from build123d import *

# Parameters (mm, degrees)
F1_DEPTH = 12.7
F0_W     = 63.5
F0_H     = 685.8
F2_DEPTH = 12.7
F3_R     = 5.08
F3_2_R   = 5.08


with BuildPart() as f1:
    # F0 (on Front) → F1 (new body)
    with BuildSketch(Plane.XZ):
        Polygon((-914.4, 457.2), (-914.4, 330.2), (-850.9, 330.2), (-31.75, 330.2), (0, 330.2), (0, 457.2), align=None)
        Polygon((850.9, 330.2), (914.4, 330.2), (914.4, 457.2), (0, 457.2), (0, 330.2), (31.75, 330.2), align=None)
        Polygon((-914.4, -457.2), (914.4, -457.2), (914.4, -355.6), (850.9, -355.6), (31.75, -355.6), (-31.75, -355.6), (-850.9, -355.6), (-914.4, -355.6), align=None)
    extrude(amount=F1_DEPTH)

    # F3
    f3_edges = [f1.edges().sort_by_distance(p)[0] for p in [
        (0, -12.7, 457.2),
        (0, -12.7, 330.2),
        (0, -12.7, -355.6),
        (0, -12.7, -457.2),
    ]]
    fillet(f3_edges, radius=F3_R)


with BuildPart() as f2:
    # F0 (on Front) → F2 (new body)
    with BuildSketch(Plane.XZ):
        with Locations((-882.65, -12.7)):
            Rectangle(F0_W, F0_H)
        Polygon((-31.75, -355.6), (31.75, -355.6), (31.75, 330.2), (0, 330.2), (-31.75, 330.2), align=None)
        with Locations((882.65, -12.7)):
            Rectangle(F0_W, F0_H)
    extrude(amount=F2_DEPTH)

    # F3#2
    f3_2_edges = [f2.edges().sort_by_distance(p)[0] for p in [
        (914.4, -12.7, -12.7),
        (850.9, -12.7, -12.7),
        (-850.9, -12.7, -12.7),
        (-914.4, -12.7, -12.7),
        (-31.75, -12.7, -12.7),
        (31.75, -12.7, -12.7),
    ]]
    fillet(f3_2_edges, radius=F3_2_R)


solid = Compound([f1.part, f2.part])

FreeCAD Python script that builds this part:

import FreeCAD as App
import Part
import Sketcher
from FreeCAD import Vector
Q = App.Units.Quantity


def edges_at(feature, points):
    """Names of the edges that pass closest to the given points."""
    edges = feature.Shape.Edges
    near = lambda p: min(range(len(edges)), key=lambda i: edges[i].distToShape(Part.Vertex(*p))[0])
    return sorted({f"Edge{near(p) + 1}" for p in points})

doc = App.newDocument("Part")
body = doc.addObject("PartDesign::Body", "Body")
body.AllowCompound = True

# Sketch on XZ plane
sketch1 = body.newObject("Sketcher::SketchObject", "Sketch")
sketch1.AttachmentSupport = (doc.getObject("XZ_Plane"), [""])
sketch1.MapMode = "FlatFace"
sketch1.addGeometry([
    Part.LineSegment(Vector(-914.4, 457.2, 0), Vector(-914.4, 330.2, 0)),  # 0
    Part.LineSegment(Vector(-914.4, 330.2, 0), Vector(914.4, 330.2, 0)),  # 1
    Part.LineSegment(Vector(914.4, 330.2, 0), Vector(914.4, 457.2, 0)),  # 2
    Part.LineSegment(Vector(914.4, 457.2, 0), Vector(-914.4, 457.2, 0)),  # 3
    Part.LineSegment(Vector(-914.4, -457.2, 0), Vector(914.4, -457.2, 0)),  # 4
    Part.LineSegment(Vector(914.4, -457.2, 0), Vector(914.4, -355.6, 0)),  # 5
    Part.LineSegment(Vector(914.4, -355.6, 0), Vector(-914.4, -355.6, 0)),  # 6
    Part.LineSegment(Vector(-914.4, -355.6, 0), Vector(-914.4, -457.2, 0)),  # 7
], False)
sketch1.addConstraint([
    Sketcher.Constraint("Coincident", 0, 2, 1, 1),
    Sketcher.Constraint("Coincident", 1, 2, 2, 1),
    Sketcher.Constraint("Coincident", 2, 2, 3, 1),
    Sketcher.Constraint("Coincident", 3, 2, 0, 1),
    Sketcher.Constraint("Coincident", 4, 2, 5, 1),
    Sketcher.Constraint("Coincident", 5, 2, 6, 1),
    Sketcher.Constraint("Coincident", 6, 2, 7, 1),
    Sketcher.Constraint("Coincident", 7, 2, 4, 1),
    Sketcher.Constraint("Vertical", 0),
    Sketcher.Constraint("Horizontal", 1),
    Sketcher.Constraint("Vertical", 2),
    Sketcher.Constraint("Horizontal", 3),
    Sketcher.Constraint("Horizontal", 4),
    Sketcher.Constraint("Vertical", 5),
    Sketcher.Constraint("Horizontal", 6),
    Sketcher.Constraint("Vertical", 7),
    Sketcher.Constraint("Symmetric", 3, 2, 4, 2, -1, 1),
    Sketcher.Constraint("Vertical", 2, 2, 4, 2),
    Sketcher.Constraint("Vertical", 3, 2, 6, 2),
    Sketcher.Constraint("DistanceX", 1, 1, 1, 2, Q("72 in")),
    Sketcher.Constraint("DistanceY", 0, 2, 0, 1, Q("5 in")),
    Sketcher.Constraint("DistanceY", 5, 1, 5, 2, Q("4 in")),
    Sketcher.Constraint("DistanceY", -1, 1, 0, 2, Q("13 in")),
])
pad1 = body.newObject("PartDesign::Pad", "Pad")
pad1.Profile = sketch1
pad1.Length = Q("0.5 in")
doc.recompute()

fillet = body.newObject("PartDesign::Fillet", "Fillet")
fillet.Base = (pad1, edges_at(pad1, [
    (0, -12.7, 457.2),
    (0, -12.7, 330.2),
    (0, -12.7, -355.6),
    (0, -12.7, -457.2),
]))
fillet.Radius = Q("0.2 in")
body2 = doc.addObject("PartDesign::Body", "Body001")
body2.AllowCompound = True

# Sketch on XZ plane
sketch2 = body2.newObject("Sketcher::SketchObject", "Sketch001")
sketch2.AttachmentSupport = (doc.getObject("XZ_Plane001"), [""])
sketch2.MapMode = "FlatFace"
sketch2.addGeometry([
    Part.LineSegment(Vector(-914.4, 330.2, 0), Vector(-914.4, -355.6, 0)),  # 0
    Part.LineSegment(Vector(-914.4, -355.6, 0), Vector(-850.9, -355.6, 0)),  # 1
    Part.LineSegment(Vector(-850.9, -355.6, 0), Vector(-850.9, 330.2, 0)),  # 2
    Part.LineSegment(Vector(-850.9, 330.2, 0), Vector(-914.4, 330.2, 0)),  # 3
    Part.LineSegment(Vector(-31.75, -355.6, 0), Vector(31.75, -355.6, 0)),  # 4
    Part.LineSegment(Vector(31.75, -355.6, 0), Vector(31.75, 330.2, 0)),  # 5
    Part.LineSegment(Vector(31.75, 330.2, 0), Vector(-31.75, 330.2, 0)),  # 6
    Part.LineSegment(Vector(-31.75, 330.2, 0), Vector(-31.75, -355.6, 0)),  # 7
    Part.LineSegment(Vector(850.9, 330.2, 0), Vector(850.9, -355.6, 0)),  # 8
    Part.LineSegment(Vector(850.9, -355.6, 0), Vector(914.4, -355.6, 0)),  # 9
    Part.LineSegment(Vector(914.4, -355.6, 0), Vector(914.4, 330.2, 0)),  # 10
    Part.LineSegment(Vector(914.4, 330.2, 0), Vector(850.9, 330.2, 0)),  # 11
], False)
sketch2.addConstraint([
    Sketcher.Constraint("Coincident", 0, 2, 1, 1),
    Sketcher.Constraint("Coincident", 1, 2, 2, 1),
    Sketcher.Constraint("Coincident", 2, 2, 3, 1),
    Sketcher.Constraint("Coincident", 3, 2, 0, 1),
    Sketcher.Constraint("Coincident", 4, 2, 5, 1),
    Sketcher.Constraint("Coincident", 5, 2, 6, 1),
    Sketcher.Constraint("Coincident", 6, 2, 7, 1),
    Sketcher.Constraint("Coincident", 7, 2, 4, 1),
    Sketcher.Constraint("Coincident", 8, 2, 9, 1),
    Sketcher.Constraint("Coincident", 9, 2, 10, 1),
    Sketcher.Constraint("Coincident", 10, 2, 11, 1),
    Sketcher.Constraint("Coincident", 11, 2, 8, 1),
    Sketcher.Constraint("Vertical", 0),
    Sketcher.Constraint("Horizontal", 1),
    Sketcher.Constraint("Vertical", 2),
    Sketcher.Constraint("Horizontal", 3),
    Sketcher.Constraint("Horizontal", 4),
    Sketcher.Constraint("Vertical", 5),
    Sketcher.Constraint("Horizontal", 6),
    Sketcher.Constraint("Vertical", 7),
    Sketcher.Constraint("Vertical", 8),
    Sketcher.Constraint("Horizontal", 9),
    Sketcher.Constraint("Vertical", 10),
    Sketcher.Constraint("Horizontal", 11),
    Sketcher.Constraint("Symmetric", 1, 2, 8, 2, -2),
    Sketcher.Constraint("Symmetric", 3, 2, 10, 2, -2),
    Sketcher.Constraint("Horizontal", 1, 2, 4, 2),
    Sketcher.Constraint("Horizontal", 3, 2, 5, 2),
    Sketcher.Constraint("Equal", 3, 4),
    Sketcher.Constraint("DistanceY", 0, 2, 0, 1, Q("27 in")),
    Sketcher.Constraint("DistanceX", 1, 1, 1, 2, Q("2.5 in")),
    Sketcher.Constraint("DistanceX", 0, 2, -1, 1, Q("36 in")),
    Sketcher.Constraint("DistanceY", 0, 2, -1, 1, Q("14 in")),
    Sketcher.Constraint("DistanceX", -1, 1, 4, 2, Q("1.25 in")),
])
pad2 = body2.newObject("PartDesign::Pad", "Pad001")
pad2.Profile = sketch2
pad2.Length = Q("0.5 in")
doc.recompute()

fillet2 = body2.newObject("PartDesign::Fillet", "Fillet001")
fillet2.Base = (pad2, edges_at(pad2, [
    (914.4, -12.7, -12.7),
    (850.9, -12.7, -12.7),
    (-850.9, -12.7, -12.7),
    (-914.4, -12.7, -12.7),
    (-31.75, -12.7, -12.7),
    (31.75, -12.7, -12.7),
]))
fillet2.Radius = Q("0.2 in")

doc.recompute()
